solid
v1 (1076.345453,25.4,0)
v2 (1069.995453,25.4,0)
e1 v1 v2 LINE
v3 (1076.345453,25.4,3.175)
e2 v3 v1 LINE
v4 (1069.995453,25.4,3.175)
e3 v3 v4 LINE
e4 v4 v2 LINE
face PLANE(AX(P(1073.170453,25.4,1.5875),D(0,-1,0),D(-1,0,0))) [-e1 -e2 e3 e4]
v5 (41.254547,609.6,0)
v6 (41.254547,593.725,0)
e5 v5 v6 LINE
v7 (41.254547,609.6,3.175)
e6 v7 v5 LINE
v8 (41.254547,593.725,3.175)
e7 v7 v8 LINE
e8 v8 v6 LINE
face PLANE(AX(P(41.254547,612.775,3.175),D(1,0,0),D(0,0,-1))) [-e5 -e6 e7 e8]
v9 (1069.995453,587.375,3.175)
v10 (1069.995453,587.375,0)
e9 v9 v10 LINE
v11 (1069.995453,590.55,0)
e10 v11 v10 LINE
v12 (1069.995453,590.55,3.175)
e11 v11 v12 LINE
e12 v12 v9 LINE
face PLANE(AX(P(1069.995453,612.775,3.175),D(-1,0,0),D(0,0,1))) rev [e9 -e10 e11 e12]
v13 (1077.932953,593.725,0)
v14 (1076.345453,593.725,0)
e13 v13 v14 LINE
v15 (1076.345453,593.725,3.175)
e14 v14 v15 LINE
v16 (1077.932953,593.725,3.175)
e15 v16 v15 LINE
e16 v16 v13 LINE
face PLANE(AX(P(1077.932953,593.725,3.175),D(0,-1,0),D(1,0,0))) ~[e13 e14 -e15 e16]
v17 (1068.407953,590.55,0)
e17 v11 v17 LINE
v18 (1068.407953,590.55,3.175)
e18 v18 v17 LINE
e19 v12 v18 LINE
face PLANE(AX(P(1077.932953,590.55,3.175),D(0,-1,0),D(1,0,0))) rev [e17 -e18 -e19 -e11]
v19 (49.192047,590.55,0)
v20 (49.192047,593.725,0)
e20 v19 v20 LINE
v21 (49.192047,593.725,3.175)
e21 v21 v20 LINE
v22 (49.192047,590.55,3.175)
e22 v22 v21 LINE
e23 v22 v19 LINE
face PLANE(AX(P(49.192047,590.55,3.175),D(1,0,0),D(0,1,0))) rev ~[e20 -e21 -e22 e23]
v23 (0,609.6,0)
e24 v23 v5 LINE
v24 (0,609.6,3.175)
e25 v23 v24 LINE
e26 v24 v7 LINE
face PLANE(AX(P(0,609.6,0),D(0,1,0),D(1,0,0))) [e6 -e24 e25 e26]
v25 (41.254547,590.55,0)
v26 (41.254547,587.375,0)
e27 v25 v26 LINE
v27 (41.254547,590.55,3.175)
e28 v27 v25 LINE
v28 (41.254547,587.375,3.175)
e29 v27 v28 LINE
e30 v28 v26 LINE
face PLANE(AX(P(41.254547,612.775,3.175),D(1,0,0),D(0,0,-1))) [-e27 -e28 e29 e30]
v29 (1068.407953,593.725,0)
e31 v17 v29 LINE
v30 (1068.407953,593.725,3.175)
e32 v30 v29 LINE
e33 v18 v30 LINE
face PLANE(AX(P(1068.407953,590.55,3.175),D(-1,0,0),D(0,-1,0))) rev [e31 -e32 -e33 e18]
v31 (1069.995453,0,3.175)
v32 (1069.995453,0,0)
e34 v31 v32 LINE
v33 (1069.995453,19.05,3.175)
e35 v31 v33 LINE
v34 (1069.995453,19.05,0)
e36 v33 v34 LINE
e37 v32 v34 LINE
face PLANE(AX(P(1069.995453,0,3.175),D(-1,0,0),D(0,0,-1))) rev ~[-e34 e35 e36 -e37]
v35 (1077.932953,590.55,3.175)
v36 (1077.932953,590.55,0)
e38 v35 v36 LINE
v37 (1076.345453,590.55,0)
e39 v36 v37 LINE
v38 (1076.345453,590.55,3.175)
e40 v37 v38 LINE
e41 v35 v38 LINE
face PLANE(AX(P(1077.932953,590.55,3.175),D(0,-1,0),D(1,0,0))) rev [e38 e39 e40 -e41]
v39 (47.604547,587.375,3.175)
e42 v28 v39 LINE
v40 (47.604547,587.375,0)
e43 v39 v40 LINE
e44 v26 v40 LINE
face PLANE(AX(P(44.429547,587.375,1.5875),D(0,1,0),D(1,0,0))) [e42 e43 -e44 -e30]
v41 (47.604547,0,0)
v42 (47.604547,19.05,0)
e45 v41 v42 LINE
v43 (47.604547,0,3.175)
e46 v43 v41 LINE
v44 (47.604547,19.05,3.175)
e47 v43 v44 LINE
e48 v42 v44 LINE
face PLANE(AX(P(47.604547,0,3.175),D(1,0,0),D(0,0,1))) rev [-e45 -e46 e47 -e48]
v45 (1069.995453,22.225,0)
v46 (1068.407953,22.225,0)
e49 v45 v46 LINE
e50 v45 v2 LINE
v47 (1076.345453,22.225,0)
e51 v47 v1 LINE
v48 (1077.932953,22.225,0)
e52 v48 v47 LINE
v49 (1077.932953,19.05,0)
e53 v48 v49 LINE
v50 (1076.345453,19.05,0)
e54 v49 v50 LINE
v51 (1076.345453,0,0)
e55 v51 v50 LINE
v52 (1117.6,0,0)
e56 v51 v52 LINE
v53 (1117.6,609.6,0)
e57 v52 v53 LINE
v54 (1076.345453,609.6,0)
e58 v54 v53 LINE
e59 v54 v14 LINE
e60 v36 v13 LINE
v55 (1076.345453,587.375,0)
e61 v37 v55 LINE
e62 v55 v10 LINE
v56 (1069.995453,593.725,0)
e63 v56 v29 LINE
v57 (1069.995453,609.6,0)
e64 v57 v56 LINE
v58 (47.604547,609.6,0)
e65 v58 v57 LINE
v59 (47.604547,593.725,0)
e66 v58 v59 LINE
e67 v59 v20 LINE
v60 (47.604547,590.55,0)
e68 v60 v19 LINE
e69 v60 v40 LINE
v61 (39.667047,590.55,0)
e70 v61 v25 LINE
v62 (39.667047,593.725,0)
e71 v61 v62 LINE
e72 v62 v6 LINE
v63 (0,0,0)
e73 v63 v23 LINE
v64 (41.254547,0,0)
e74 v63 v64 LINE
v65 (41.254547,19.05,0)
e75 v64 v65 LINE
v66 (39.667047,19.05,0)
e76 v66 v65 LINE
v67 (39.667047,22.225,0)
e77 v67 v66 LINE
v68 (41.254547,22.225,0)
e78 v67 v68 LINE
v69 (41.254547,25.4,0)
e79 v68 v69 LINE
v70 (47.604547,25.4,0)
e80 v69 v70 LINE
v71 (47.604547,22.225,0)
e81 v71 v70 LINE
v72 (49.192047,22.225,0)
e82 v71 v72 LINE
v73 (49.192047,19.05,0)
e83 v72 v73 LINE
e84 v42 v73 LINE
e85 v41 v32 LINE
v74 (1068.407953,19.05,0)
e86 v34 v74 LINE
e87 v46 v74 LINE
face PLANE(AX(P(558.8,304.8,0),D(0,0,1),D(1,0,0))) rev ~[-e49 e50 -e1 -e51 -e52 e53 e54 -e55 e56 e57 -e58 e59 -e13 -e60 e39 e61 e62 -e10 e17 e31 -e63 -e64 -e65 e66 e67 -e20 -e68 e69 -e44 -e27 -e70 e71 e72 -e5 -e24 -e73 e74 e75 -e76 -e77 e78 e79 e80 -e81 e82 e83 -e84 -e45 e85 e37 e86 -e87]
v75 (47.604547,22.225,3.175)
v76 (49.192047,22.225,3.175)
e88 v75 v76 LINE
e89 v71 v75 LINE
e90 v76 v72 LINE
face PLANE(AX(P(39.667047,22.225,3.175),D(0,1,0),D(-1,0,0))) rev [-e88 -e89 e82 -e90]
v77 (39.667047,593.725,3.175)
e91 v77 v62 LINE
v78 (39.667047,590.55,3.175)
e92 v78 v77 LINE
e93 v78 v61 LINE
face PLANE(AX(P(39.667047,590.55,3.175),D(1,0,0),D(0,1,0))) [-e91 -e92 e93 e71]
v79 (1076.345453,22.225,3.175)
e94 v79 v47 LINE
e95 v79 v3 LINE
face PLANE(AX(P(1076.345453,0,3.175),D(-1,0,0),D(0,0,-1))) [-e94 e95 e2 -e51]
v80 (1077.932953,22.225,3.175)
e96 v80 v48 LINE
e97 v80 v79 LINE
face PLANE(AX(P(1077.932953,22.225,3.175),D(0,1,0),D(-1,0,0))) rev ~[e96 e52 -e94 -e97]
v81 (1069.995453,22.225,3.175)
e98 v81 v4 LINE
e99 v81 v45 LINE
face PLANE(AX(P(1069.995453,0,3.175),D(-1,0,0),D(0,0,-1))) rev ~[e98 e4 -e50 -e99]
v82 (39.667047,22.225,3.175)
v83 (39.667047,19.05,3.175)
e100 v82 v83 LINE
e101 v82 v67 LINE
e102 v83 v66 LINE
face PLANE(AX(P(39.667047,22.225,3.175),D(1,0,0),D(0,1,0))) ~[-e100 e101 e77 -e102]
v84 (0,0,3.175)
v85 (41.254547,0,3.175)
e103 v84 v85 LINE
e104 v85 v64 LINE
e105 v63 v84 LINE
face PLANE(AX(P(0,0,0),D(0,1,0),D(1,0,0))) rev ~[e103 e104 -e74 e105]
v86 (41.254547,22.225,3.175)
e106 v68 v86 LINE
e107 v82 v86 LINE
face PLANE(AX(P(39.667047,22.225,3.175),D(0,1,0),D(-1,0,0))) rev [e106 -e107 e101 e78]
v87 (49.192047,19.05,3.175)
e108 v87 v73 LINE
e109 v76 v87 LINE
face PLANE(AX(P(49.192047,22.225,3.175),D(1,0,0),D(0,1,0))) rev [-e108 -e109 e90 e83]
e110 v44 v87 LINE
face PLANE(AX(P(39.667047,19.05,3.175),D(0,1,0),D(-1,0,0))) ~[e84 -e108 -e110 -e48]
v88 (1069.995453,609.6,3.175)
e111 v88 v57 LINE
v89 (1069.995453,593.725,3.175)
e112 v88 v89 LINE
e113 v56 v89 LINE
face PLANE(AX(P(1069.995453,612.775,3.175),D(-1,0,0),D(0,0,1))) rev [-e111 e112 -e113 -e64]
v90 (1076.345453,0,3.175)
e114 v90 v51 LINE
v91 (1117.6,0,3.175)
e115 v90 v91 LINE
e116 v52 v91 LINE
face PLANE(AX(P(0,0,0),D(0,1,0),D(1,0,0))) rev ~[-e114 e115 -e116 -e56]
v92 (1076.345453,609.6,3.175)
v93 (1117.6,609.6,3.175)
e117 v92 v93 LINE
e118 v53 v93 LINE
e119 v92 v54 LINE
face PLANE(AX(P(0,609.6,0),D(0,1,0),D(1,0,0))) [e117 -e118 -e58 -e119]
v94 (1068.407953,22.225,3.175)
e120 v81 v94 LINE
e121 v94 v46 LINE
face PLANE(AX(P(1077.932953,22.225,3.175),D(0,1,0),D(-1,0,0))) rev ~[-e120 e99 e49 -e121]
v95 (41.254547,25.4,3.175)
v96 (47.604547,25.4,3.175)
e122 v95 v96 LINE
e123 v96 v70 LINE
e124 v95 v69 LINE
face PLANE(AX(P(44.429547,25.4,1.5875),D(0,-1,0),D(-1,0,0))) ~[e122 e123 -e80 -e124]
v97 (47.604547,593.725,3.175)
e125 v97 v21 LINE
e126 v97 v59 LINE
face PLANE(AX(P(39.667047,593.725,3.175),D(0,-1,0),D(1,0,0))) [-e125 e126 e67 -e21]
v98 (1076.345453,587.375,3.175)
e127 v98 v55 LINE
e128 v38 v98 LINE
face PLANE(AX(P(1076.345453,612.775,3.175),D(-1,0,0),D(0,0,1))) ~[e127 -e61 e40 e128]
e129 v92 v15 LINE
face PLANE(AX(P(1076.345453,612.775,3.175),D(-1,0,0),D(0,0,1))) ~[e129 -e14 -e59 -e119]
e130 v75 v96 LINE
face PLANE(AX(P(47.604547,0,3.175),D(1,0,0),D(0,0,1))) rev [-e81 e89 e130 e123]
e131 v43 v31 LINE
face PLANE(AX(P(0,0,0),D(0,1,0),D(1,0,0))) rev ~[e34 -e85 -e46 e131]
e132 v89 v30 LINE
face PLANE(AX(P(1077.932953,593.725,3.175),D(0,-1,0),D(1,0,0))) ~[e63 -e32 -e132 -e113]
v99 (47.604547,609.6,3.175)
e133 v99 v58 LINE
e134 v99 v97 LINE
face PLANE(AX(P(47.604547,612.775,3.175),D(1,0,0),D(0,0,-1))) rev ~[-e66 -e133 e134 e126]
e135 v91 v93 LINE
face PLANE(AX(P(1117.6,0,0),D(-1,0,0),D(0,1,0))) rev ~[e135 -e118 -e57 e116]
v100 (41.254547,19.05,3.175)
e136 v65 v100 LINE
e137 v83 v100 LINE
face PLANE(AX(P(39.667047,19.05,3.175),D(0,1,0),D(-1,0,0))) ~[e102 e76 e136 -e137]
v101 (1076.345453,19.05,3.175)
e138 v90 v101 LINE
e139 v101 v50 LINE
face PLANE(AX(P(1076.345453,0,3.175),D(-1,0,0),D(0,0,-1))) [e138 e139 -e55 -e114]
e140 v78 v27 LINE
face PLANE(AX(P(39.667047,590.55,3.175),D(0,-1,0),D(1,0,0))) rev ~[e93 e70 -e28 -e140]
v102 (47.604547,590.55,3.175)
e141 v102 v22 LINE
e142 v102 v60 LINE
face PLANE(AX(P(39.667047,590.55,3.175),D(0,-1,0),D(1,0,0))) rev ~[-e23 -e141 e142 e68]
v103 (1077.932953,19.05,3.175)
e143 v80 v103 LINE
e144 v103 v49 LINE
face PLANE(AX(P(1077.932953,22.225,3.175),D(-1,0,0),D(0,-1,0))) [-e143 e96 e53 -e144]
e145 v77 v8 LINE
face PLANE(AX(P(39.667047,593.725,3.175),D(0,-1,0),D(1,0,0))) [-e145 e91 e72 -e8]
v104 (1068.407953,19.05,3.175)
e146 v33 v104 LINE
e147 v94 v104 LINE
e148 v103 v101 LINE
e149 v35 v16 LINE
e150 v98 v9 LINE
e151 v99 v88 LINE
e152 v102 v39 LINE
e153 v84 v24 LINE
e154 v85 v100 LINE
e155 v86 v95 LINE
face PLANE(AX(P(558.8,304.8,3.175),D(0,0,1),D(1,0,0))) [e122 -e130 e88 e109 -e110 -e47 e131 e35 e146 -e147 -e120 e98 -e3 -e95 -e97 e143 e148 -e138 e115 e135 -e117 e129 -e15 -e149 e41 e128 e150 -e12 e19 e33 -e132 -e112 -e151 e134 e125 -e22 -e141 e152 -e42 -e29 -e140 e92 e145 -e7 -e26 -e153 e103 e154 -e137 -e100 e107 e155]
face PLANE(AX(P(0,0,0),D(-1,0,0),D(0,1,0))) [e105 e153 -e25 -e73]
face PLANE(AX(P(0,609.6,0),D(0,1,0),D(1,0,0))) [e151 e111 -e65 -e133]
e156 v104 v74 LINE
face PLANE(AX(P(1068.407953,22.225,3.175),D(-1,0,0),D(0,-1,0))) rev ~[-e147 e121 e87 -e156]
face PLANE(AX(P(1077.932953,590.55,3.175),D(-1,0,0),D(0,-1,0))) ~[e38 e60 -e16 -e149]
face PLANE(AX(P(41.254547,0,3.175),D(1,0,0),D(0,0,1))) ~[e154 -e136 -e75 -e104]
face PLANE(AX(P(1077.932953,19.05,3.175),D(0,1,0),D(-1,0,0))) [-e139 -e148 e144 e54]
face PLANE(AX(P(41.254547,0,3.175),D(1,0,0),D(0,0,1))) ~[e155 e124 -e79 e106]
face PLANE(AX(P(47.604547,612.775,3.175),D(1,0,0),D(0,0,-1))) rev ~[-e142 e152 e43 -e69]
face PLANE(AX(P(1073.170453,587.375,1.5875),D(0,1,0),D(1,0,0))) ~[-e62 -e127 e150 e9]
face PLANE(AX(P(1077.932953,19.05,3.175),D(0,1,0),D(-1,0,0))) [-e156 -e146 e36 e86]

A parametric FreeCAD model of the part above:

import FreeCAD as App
import Part
import Sketcher
Q = App.Units.Quantity

doc = App.newDocument("Part")
body = doc.addObject("PartDesign::Body", "Body")

sketch1 = body.newObject("Sketcher::SketchObject", "Sketch")
sketch1.AttachmentSupport = (doc.getObject("XY_Plane"), [""])
sketch1.MapMode = "FlatFace"
sketch1.addGeometry([
    Part.LineSegment(App.Vector(0, 610, 0), App.Vector(0, 0, 0)),
    Part.LineSegment(App.Vector(0, 0, 0), App.Vector(1118, 0, 0)),
    Part.LineSegment(App.Vector(1118, 0, 0), App.Vector(1118, 610, 0)),
    Part.LineSegment(App.Vector(1118, 610, 0), App.Vector(0, 610, 0)),
], False)
sketch1.addConstraint([
    Sketcher.Constraint("Coincident", 0, 2, 1, 1),
    Sketcher.Constraint("Coincident", 1, 2, 2, 1),
    Sketcher.Constraint("Coincident", 2, 2, 3, 1),
    Sketcher.Constraint("Coincident", 3, 2, 0, 1),
    Sketcher.Constraint("Vertical", 0),
    Sketcher.Constraint("Horizontal", 1),
    Sketcher.Constraint("Vertical", 2),
    Sketcher.Constraint("Horizontal", 3),
    Sketcher.Constraint("Coincident", 0, 2, -1, 1),
    Sketcher.Constraint("DistanceX", 1, 1, 1, 2, Q("44 in")),
    Sketcher.Constraint("DistanceY", 0, 2, 0, 1, Q("24 in")),
])
pad1 = body.newObject("PartDesign::Pad", "Pad")
pad1.Profile = sketch1
pad1.Length = Q("0.125 in")

sketch2 = body.newObject("Sketcher::SketchObject", "Sketch001")
sketch2.AttachmentSupport = (doc.getObject("XZ_Plane"), [""])
sketch2.MapMode = "FlatFace"
sketch2.AttachmentOffset = App.Placement(App.Vector(0, 0, -24.125 * 25.4), App.Rotation())
sketch2.addGeometry([
    Part.LineSegment(App.Vector(41.3, 0, 0), App.Vector(41.3, 3.2, 0)),
    Part.LineSegment(App.Vector(41.3, 3.2, 0), App.Vector(47.6, 3.2, 0)),
    Part.LineSegment(App.Vector(47.6, 3.2, 0), App.Vector(47.6, 0, 0)),
    Part.LineSegment(App.Vector(47.6, 0, 0), App.Vector(41.3, 0, 0)),
], False)
sketch2.addConstraint([
    Sketcher.Constraint("Coincident", 0, 2, 1, 1),
    Sketcher.Constraint("Coincident", 1, 2, 2, 1),
    Sketcher.Constraint("Coincident", 2, 2, 3, 1),
    Sketcher.Constraint("Coincident", 3, 2, 0, 1),
    Sketcher.Constraint("Vertical", 0),
    Sketcher.Constraint("Horizontal", 1),
    Sketcher.Constraint("Vertical", 2),
    Sketcher.Constraint("Horizontal", 3),
    Sketcher.Constraint("PointOnObject", 2, 2, -1),
    Sketcher.Constraint("DistanceX", 1, 1, 1, 2, Q("0.25 in")),
    Sketcher.Constraint("DistanceY", 0, 1, 0, 2, Q("0.125 in")),
    Sketcher.Constraint("DistanceX", -1, 1, 0, 2, Q("41.254547 mm")),
])
pocket1 = body.newObject("PartDesign::Pocket", "Pocket")
pocket1.Profile = sketch2
pocket1.Length = Q("1 in")
pocket1.Reversed = True

sketch3 = body.newObject("Sketcher::SketchObject", "Sketch002")
sketch3.AttachmentSupport = (doc.getObject("XY_Plane"), [""])
sketch3.MapMode = "FlatFace"
sketch3.AttachmentOffset = App.Placement(App.Vector(0, 0, 0.125 * 25.4), App.Rotation())
sketch3.addGeometry([
    Part.LineSegment(App.Vector(39.7, 593.7, 0), App.Vector(39.7, 590.5, 0)),
    Part.LineSegment(App.Vector(39.7, 590.5, 0), App.Vector(49.2, 590.5, 0)),
    Part.LineSegment(App.Vector(49.2, 590.5, 0), App.Vector(49.2, 593.7, 0)),
    Part.LineSegment(App.Vector(49.2, 593.7, 0), App.Vector(39.7, 593.7, 0)),
], False)
sketch3.addConstraint([
    Sketcher.Constraint("Coincident", 0, 2, 1, 1),
    Sketcher.Constraint("Coincident", 1, 2, 2, 1),
    Sketcher.Constraint("Coincident", 2, 2, 3, 1),
    Sketcher.Constraint("Coincident", 3, 2, 0, 1),
    Sketcher.Constraint("Vertical", 0),
    Sketcher.Constraint("Horizontal", 1),
    Sketcher.Constraint("Vertical", 2),
    Sketcher.Constraint("Horizontal", 3),
    Sketcher.Constraint("DistanceX", 1, 1, 1, 2, Q("0.375 in")),
    Sketcher.Constraint("DistanceY", 0, 2, 0, 1, Q("0.125 in")),
    Sketcher.Constraint("DistanceY", -1, 1, 0, 2, Q("23.25 in")),
    Sketcher.Constraint("DistanceX", -1, 1, 0, 2, Q("39.667047 mm")),
])
pocket2 = body.newObject("PartDesign::Pocket", "Pocket001")
pocket2.Profile = sketch3
pocket2.Length = Q("1 in")
doc.recompute()

datumplane = body.newObject("PartDesign::Plane", "DatumPlane")
datumplane.AttachmentSupport = (doc.getObject("YZ_Plane"), [""])
datumplane.MapMode = "FlatFace"
datumplane.AttachmentOffset = App.Placement(App.Vector(0, 0, 22 * 25.4), App.Rotation())
mirrored = body.newObject("PartDesign::Mirrored", "Mirrored")
mirrored.Originals = [pocket1, pocket2]
mirrored.MirrorPlane = (datumplane, [""])
body.Tip = mirrored
doc.recompute()

datumplane2 = body.newObject("PartDesign::Plane", "DatumPlane001")
datumplane2.AttachmentSupport = (doc.getObject("XZ_Plane"), [""])
datumplane2.MapMode = "FlatFace"
datumplane2.AttachmentOffset = App.Placement(App.Vector(0, 0, -12.0625 * 25.4), App.Rotation())
mirrored2 = body.newObject("PartDesign::Mirrored", "Mirrored001")
mirrored2.Originals = [pocket1, pocket2]
mirrored2.MirrorPlane = (datumplane2, [""])
body.Tip = mirrored2

sketch4 = body.newObject("Sketcher::SketchObject", "Sketch003")
sketch4.AttachmentSupport = (doc.getObject("XZ_Plane"), [""])
sketch4.MapMode = "FlatFace"
sketch4.addGeometry([
    Part.LineSegment(App.Vector(1076.3, 0, 0), App.Vector(1076.3, 3.2, 0)),
    Part.LineSegment(App.Vector(1076.3, 3.2, 0), App.Vector(1070, 3.2, 0)),
    Part.LineSegment(App.Vector(1070, 3.2, 0), App.Vector(1070, 0, 0)),
    Part.LineSegment(App.Vector(1070, 0, 0), App.Vector(1076.3, 0, 0)),
], False)
sketch4.addConstraint([
    Sketcher.Constraint("Coincident", 0, 2, 1, 1),
    Sketcher.Constraint("Coincident", 1, 2, 2, 1),
    Sketcher.Constraint("Coincident", 2, 2, 3, 1),
    Sketcher.Constraint("Coincident", 3, 2, 0, 1),
    Sketcher.Constraint("Vertical", 0),
    Sketcher.Constraint("Horizontal", 1),
    Sketcher.Constraint("Vertical", 2),
    Sketcher.Constraint("Horizontal", 3),
    Sketcher.Constraint("PointOnObject", 2, 2, -1),
    Sketcher.Constraint("DistanceX", 1, 2, 1, 1, Q("0.25 in")),
    Sketcher.Constraint("DistanceY", 0, 1, 0, 2, Q("0.125 in")),
    Sketcher.Constraint("DistanceX", -1, 1, 0, 2, Q("1076.345453 mm")),
])
pocket3 = body.newObject("PartDesign::Pocket", "Pocket002")
pocket3.Profile = sketch4
pocket3.Length = Q("1 in")

sketch5 = body.newObject("Sketcher::SketchObject", "Sketch004")
sketch5.AttachmentSupport = (doc.getObject("XY_Plane"), [""])
sketch5.MapMode = "FlatFace"
sketch5.AttachmentOffset = App.Placement(App.Vector(0, 0, 0.125 * 25.4), App.Rotation())
sketch5.addGeometry([
    Part.LineSegment(App.Vector(1077.9, 19.1, 0), App.Vector(1077.9, 22.2, 0)),
    Part.LineSegment(App.Vector(1077.9, 22.2, 0), App.Vector(1068.4, 22.2, 0)),
    Part.LineSegment(App.Vector(1068.4, 22.2, 0), App.Vector(1068.4, 19.1, 0)),
    Part.LineSegment(App.Vector(1068.4, 19.1, 0), App.Vector(1077.9, 19.1, 0)),
], False)
sketch5.addConstraint([
    Sketcher.Constraint("Coincident", 0, 2, 1, 1),
    Sketcher.Constraint("Coincident", 1, 2, 2, 1),
    Sketcher.Constraint("Coincident", 2, 2, 3, 1),
    Sketcher.Constraint("Coincident", 3, 2, 0, 1),
    Sketcher.Constraint("Vertical", 0),
    Sketcher.Constraint("Horizontal", 1),
    Sketcher.Constraint("Vertical", 2),
    Sketcher.Constraint("Horizontal", 3),
    Sketcher.Constraint("DistanceX", 1, 2, 1, 1, Q("0.375 in")),
    Sketcher.Constraint("DistanceY", 0, 1, 0, 2, Q("0.125 in")),
    Sketcher.Constraint("DistanceY", -1, 1, 2, 2, Q("0.75 in")),
    Sketcher.Constraint("DistanceX", -1, 1, 0, 2, Q("1077.932953 mm")),
])
pocket4 = body.newObject("PartDesign::Pocket", "Pocket003")
pocket4.Profile = sketch5
pocket4.Length = Q("1 in")

doc.recompute()
